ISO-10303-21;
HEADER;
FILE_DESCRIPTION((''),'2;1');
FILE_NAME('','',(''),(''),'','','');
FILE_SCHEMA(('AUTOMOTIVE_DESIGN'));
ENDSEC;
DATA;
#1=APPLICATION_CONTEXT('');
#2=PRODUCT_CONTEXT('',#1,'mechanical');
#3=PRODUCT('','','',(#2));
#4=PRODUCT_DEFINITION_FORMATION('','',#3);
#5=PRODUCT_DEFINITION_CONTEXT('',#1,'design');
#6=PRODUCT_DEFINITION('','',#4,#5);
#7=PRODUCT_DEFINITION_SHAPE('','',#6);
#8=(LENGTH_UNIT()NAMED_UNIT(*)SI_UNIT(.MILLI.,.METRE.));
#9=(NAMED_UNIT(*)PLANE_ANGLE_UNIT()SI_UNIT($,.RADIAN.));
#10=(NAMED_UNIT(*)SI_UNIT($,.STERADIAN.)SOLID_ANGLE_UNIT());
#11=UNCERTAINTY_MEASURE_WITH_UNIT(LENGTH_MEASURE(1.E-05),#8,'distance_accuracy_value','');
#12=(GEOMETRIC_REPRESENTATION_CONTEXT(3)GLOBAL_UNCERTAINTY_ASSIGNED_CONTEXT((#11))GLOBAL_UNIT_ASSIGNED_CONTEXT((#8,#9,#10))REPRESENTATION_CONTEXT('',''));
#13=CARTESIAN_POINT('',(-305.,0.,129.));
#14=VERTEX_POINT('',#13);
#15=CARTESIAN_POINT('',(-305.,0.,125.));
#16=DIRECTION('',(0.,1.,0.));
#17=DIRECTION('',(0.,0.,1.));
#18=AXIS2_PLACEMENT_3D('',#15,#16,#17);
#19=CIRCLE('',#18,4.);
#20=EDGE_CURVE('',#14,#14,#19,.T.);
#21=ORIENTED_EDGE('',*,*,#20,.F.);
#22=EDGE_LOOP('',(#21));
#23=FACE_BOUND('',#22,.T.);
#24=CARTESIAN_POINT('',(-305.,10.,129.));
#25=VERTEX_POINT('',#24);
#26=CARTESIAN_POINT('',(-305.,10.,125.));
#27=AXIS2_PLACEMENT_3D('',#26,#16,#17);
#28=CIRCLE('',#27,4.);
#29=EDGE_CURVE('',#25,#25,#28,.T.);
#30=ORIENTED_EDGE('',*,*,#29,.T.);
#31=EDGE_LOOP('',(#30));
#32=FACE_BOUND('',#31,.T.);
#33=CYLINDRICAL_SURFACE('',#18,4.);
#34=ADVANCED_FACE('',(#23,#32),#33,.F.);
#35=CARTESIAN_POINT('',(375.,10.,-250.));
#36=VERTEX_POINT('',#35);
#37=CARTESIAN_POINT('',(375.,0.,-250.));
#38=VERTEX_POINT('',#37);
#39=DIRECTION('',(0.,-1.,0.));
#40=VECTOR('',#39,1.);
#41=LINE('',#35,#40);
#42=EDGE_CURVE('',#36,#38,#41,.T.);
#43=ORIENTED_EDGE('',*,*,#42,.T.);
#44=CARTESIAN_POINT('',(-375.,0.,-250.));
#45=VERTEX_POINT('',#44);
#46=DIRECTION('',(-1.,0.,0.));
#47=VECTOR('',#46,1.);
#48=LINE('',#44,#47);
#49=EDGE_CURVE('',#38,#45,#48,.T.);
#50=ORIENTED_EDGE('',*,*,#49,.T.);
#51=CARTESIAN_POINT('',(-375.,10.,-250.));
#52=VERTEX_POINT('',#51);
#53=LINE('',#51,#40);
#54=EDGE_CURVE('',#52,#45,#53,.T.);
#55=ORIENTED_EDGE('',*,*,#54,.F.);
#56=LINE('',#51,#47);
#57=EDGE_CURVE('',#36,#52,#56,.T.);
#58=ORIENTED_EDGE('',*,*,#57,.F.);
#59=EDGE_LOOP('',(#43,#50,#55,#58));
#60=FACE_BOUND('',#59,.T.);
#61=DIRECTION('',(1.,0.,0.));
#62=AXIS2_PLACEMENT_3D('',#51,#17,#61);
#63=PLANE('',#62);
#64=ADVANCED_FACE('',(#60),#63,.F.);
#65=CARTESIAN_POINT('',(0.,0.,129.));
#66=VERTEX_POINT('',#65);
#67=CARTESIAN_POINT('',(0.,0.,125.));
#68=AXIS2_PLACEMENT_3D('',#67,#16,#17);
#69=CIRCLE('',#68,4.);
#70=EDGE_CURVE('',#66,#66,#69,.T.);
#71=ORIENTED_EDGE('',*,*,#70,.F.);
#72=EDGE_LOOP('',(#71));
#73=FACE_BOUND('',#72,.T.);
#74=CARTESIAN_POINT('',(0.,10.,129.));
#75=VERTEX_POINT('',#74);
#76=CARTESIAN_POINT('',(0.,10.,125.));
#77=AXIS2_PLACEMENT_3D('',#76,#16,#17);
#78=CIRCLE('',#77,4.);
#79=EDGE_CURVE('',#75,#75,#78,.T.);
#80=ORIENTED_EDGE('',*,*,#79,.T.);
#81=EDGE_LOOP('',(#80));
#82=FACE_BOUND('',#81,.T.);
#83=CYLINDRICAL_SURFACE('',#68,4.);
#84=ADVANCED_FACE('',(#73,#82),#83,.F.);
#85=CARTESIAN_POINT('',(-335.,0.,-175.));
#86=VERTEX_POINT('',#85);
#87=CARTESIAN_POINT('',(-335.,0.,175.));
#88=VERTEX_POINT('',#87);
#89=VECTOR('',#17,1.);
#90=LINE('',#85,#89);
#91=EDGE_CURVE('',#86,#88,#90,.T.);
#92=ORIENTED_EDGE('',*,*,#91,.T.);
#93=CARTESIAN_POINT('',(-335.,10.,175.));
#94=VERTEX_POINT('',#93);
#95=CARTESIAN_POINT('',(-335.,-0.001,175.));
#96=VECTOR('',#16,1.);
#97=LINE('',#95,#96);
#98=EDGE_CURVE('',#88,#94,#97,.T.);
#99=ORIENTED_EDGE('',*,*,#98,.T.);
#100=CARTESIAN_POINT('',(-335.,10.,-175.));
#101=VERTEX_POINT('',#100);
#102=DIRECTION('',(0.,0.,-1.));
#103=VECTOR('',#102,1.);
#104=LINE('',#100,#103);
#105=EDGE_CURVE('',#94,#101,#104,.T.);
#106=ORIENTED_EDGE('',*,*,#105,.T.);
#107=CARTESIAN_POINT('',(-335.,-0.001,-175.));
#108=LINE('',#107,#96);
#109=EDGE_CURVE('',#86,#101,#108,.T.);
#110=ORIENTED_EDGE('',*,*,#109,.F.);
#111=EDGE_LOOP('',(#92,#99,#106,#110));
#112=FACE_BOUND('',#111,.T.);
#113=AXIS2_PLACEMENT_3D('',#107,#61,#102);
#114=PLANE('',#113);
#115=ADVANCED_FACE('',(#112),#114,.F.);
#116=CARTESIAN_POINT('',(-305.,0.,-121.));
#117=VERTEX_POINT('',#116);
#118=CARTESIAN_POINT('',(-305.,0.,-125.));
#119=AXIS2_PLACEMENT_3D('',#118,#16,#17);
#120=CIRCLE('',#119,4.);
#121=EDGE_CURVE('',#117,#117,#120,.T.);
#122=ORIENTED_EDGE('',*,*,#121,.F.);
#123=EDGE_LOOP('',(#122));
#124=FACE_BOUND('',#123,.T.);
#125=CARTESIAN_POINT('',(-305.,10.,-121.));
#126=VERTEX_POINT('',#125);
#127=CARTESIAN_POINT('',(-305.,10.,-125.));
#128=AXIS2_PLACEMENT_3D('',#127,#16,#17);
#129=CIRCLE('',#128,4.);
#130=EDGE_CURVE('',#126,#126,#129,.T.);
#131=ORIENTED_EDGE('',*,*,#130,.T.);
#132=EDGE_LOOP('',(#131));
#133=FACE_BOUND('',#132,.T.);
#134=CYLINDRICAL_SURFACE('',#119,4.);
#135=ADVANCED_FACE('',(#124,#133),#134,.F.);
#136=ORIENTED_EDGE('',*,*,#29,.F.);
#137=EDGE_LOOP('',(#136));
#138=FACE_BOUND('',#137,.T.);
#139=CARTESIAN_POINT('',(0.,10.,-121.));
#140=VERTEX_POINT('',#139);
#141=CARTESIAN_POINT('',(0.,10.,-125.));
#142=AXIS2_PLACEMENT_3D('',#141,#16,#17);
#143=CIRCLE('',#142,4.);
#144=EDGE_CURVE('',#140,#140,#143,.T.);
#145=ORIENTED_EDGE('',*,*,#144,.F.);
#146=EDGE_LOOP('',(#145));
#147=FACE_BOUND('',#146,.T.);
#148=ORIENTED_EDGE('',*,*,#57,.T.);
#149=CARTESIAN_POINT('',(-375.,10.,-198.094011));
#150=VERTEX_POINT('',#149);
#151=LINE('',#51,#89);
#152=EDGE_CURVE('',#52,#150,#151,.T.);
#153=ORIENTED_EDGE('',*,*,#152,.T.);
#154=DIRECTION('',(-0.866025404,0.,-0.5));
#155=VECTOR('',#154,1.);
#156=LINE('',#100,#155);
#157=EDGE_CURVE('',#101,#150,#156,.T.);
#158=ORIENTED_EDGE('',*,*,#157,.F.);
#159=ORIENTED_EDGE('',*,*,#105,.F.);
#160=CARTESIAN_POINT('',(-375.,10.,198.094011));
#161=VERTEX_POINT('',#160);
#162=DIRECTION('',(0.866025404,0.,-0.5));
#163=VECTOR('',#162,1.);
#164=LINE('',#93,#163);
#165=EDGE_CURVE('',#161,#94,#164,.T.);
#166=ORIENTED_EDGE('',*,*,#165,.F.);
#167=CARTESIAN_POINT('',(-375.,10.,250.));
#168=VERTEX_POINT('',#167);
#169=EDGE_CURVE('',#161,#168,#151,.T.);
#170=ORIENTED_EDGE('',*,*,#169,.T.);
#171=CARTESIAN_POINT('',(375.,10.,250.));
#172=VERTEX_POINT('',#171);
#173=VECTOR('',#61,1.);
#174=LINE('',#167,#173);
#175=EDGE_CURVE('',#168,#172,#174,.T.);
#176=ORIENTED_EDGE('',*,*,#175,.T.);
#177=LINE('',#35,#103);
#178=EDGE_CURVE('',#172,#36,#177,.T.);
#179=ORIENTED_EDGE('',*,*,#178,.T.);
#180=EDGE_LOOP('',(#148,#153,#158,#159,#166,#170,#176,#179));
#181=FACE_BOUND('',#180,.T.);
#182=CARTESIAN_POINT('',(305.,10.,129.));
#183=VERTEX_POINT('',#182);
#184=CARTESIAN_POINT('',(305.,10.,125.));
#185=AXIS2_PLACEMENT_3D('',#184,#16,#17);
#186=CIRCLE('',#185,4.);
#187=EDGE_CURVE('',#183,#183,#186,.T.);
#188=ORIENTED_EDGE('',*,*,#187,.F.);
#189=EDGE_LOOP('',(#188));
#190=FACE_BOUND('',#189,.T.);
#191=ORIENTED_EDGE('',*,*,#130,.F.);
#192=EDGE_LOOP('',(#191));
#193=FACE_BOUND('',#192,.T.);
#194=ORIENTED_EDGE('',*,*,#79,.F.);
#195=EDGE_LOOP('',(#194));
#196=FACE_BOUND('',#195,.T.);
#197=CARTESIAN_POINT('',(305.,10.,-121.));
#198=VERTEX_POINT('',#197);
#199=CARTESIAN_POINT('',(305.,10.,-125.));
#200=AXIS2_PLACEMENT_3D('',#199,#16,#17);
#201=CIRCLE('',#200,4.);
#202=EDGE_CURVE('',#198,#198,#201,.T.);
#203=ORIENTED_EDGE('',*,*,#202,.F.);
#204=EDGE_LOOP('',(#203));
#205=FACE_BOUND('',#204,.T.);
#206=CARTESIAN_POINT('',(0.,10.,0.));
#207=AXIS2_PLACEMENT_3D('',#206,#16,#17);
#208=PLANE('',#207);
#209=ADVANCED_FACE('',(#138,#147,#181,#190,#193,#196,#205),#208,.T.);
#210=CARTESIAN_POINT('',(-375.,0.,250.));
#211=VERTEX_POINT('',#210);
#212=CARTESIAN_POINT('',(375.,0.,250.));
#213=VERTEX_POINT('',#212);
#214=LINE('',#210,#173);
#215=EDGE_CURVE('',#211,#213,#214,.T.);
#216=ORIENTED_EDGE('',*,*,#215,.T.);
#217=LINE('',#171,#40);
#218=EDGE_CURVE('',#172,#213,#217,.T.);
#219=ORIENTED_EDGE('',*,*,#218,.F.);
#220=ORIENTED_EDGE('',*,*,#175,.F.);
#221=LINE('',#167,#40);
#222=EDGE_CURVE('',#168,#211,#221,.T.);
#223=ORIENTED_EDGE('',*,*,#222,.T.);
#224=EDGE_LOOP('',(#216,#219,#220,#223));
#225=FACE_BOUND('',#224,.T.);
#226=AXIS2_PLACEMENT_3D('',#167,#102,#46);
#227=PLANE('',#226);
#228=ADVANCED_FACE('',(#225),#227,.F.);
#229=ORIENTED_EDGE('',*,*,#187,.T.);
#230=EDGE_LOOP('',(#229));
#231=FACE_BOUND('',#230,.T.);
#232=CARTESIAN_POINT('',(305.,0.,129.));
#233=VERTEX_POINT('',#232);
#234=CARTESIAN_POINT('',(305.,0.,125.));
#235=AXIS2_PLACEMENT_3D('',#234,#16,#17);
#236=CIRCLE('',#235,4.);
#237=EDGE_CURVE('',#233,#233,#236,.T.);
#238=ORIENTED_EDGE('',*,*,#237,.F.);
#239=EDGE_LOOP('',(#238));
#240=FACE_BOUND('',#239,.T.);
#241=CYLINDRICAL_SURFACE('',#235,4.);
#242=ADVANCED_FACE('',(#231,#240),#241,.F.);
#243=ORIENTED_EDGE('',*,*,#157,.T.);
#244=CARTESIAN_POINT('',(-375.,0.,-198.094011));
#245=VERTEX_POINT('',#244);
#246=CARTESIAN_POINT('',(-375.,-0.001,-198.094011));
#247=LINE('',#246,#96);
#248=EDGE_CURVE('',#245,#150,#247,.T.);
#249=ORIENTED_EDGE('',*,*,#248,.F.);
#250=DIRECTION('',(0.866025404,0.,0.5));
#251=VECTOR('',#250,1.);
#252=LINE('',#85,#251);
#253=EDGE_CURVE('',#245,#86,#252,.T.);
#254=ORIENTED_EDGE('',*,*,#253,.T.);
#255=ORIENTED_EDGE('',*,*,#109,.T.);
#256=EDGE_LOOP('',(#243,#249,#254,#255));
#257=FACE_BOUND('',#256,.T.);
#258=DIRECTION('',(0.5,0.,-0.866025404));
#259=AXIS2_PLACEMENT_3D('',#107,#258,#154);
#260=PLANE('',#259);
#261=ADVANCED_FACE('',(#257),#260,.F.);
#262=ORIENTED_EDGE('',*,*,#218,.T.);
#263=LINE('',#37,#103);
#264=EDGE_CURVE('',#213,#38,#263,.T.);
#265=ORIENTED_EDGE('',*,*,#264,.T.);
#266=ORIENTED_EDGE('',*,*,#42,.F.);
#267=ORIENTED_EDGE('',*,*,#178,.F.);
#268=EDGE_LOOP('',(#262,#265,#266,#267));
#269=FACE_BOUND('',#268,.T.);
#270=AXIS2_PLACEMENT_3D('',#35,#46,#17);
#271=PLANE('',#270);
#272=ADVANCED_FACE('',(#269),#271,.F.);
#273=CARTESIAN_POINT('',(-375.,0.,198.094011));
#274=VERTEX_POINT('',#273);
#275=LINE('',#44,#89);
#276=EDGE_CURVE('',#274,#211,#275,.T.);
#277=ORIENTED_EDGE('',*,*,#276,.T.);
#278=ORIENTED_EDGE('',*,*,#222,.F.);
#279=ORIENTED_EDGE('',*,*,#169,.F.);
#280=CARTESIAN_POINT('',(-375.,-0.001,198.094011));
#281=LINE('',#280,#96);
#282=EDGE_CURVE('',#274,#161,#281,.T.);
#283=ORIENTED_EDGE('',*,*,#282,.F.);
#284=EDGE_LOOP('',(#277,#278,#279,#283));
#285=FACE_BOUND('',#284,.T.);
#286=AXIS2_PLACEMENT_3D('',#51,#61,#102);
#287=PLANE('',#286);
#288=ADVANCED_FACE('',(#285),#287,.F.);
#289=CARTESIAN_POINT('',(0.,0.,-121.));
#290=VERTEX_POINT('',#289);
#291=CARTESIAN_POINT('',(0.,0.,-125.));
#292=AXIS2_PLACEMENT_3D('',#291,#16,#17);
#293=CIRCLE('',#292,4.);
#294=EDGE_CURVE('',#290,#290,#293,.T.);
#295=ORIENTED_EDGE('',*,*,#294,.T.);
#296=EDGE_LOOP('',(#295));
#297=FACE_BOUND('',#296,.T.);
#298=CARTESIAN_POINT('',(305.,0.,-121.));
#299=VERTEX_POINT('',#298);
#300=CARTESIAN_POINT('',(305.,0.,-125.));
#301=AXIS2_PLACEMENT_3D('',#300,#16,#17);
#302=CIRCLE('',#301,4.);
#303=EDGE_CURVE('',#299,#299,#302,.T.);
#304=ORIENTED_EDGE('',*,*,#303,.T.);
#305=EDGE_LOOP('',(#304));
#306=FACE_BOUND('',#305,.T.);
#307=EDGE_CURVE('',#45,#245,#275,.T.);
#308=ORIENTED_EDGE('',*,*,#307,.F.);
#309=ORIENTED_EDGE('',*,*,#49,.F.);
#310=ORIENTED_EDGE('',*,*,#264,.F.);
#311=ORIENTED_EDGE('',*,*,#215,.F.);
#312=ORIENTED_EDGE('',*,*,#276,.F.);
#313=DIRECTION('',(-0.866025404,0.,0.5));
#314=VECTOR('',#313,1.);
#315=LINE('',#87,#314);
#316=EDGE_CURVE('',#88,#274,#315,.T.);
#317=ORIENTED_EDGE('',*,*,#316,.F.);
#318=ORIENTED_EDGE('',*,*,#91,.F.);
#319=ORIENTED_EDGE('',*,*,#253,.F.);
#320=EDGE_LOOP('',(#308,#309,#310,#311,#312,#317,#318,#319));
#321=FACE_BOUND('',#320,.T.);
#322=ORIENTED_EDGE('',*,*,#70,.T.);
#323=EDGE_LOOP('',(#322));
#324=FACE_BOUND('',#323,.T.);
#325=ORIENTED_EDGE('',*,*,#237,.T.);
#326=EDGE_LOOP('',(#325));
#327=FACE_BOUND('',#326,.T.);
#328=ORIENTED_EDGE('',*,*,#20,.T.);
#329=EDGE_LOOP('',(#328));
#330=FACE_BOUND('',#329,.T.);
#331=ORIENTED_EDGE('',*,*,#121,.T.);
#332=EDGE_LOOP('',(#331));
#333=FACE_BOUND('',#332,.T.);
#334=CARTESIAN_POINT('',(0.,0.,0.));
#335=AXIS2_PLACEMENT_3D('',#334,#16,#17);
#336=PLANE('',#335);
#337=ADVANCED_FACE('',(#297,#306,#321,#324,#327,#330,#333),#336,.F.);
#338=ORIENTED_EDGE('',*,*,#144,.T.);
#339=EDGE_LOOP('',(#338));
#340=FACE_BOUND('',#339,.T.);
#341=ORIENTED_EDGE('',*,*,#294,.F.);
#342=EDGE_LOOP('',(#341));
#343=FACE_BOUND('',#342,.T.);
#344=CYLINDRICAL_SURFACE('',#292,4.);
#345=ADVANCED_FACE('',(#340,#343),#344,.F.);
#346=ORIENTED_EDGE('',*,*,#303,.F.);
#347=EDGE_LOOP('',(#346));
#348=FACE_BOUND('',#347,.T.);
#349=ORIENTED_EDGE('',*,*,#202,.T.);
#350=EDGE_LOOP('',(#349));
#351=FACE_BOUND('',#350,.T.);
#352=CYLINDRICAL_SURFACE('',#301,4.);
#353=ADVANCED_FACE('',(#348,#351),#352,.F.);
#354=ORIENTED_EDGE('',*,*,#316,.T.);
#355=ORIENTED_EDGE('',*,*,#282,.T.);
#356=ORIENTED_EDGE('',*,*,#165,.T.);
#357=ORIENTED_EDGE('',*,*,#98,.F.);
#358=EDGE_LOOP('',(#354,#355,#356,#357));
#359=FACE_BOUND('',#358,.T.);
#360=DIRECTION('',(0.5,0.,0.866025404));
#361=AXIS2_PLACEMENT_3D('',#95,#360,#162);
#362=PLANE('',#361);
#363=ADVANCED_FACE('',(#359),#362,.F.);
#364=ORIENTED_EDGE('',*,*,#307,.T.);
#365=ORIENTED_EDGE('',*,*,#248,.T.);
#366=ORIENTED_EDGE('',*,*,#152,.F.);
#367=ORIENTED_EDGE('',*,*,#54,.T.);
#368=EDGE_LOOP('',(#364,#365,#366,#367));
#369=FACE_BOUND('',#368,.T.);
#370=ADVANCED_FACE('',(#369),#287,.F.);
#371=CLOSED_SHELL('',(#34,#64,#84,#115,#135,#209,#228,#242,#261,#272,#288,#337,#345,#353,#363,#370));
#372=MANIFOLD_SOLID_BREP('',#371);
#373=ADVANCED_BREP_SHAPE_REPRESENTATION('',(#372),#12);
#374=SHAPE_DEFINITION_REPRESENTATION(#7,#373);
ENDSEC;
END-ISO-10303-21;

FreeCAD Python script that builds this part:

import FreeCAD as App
import Part
import Sketcher

V = App.Vector
Q = App.Units.Quantity


def add_polygon(sketch, points):
    """Adds a closed chain of lines whose ends are joined by coincident constraints."""
    first, n = sketch.GeometryCount, len(points)
    for a, b in zip(points, points[1:] + points[:1]):
        sketch.addGeometry(Part.LineSegment(App.Vector(*a, 0), App.Vector(*b, 0)), False)
    for i in range(n):
        sketch.addConstraint(Sketcher.Constraint("Coincident", first + i, 2, first + (i + 1) % n, 1))

doc = App.newDocument("Part")
body = doc.addObject("PartDesign::Body", "Body")

# Sketch on XZ plane
sketch1 = body.newObject("Sketcher::SketchObject", "Sketch")
sketch1.AttachmentSupport = (doc.getObject("XZ_Plane"), [""])
sketch1.MapMode = "FlatFace"
add_polygon(sketch1, [(-375, -250), (-375, 250), (375, 250), (375, -250)])  # lines 0-3
sketch1.addConstraint([
    Sketcher.Constraint("Vertical", 0),
    Sketcher.Constraint("Horizontal", 1),
    Sketcher.Constraint("Vertical", 2),
    Sketcher.Constraint("Horizontal", 3),
    Sketcher.Constraint("Symmetric", 0, 2, 2, 2, -1, 1),
    Sketcher.Constraint("DistanceX", 1, 1, 1, 2, 750.0),
    Sketcher.Constraint("DistanceY", 0, 1, 0, 2, 500.0),
])
pad1 = body.newObject("PartDesign::Pad", "Pad")
pad1.Profile = sketch1
pad1.Length = 10
pad1.Reversed = True

# Sketch on XZ plane
sketch2 = body.newObject("Sketcher::SketchObject", "Sketch001")
sketch2.AttachmentSupport = (doc.getObject("XZ_Plane"), [""])
sketch2.MapMode = "FlatFace"
sketch2.AttachmentOffset = App.Placement(V(0, 0, -10), App.Rotation())
sketch2.addGeometry(Part.Circle(V(305, -125, 0), V(0, 0, 1), 4), False)
sketch2.addConstraint([
    Sketcher.Constraint("Diameter", 0, 8.0),
    Sketcher.Constraint("DistanceX", -1, 1, 0, 3, 305.0),
    Sketcher.Constraint("DistanceY", 0, 3, -1, 1, 125.0),
])
pocket1 = body.newObject("PartDesign::Pocket", "Pocket")
pocket1.Profile = sketch2
pocket1.Length = 10
pocket1.Reversed = True

# Sketch on XZ plane
sketch3 = body.newObject("Sketcher::SketchObject", "Sketch002")
sketch3.AttachmentSupport = (doc.getObject("XZ_Plane"), [""])
sketch3.MapMode = "FlatFace"
sketch3.AttachmentOffset = App.Placement(V(0, 0, -10), App.Rotation())
sketch3.addGeometry(Part.Circle(V(305, 125, 0), V(0, 0, 1), 4), False)
sketch3.addConstraint([
    Sketcher.Constraint("Diameter", 0, 8.0),
    Sketcher.Constraint("DistanceX", -1, 1, 0, 3, 305.0),
    Sketcher.Constraint("DistanceY", -1, 1, 0, 3, 125.0),
])
pocket2 = body.newObject("PartDesign::Pocket", "Pocket001")
pocket2.Profile = sketch3
pocket2.Length = 10
pocket2.Reversed = True

# Sketch on XZ plane
sketch4 = body.newObject("Sketcher::SketchObject", "Sketch003")
sketch4.AttachmentSupport = (doc.getObject("XZ_Plane"), [""])
sketch4.MapMode = "FlatFace"
sketch4.AttachmentOffset = App.Placement(V(0, 0, -10), App.Rotation())
sketch4.addGeometry(Part.Circle(V(0, -125, 0), V(0, 0, 1), 4), False)
sketch4.addConstraint([
    Sketcher.Constraint("PointOnObject", 0, 3, -2),
    Sketcher.Constraint("Diameter", 0, 8.0),
    Sketcher.Constraint("DistanceY", 0, 3, -1, 1, 125.0),
])
pocket3 = body.newObject("PartDesign::Pocket", "Pocket002")
pocket3.Profile = sketch4
pocket3.Length = 10
pocket3.Reversed = True

# Sketch on XZ plane
sketch5 = body.newObject("Sketcher::SketchObject", "Sketch004")
sketch5.AttachmentSupport = (doc.getObject("XZ_Plane"), [""])
sketch5.MapMode = "FlatFace"
sketch5.AttachmentOffset = App.Placement(V(0, 0, -10), App.Rotation())
sketch5.addGeometry(Part.Circle(V(0, 125, 0), V(0, 0, 1), 4), False)
sketch5.addConstraint([
    Sketcher.Constraint("PointOnObject", 0, 3, -2),
    Sketcher.Constraint("Diameter", 0, 8.0),
    Sketcher.Constraint("DistanceY", -1, 1, 0, 3, 125.0),
])
pocket4 = body.newObject("PartDesign::Pocket", "Pocket003")
pocket4.Profile = sketch5
pocket4.Length = 10
pocket4.Reversed = True

# Sketch on XZ plane
sketch6 = body.newObject("Sketcher::SketchObject", "Sketch005")
sketch6.AttachmentSupport = (doc.getObject("XZ_Plane"), [""])
sketch6.MapMode = "FlatFace"
sketch6.AttachmentOffset = App.Placement(V(0, 0, -10), App.Rotation())
sketch6.addGeometry(Part.Circle(V(-305, -125, 0), V(0, 0, 1), 4), False)
sketch6.addConstraint([
    Sketcher.Constraint("Diameter", 0, 8.0),
    Sketcher.Constraint("DistanceX", 0, 3, -1, 1, 305.0),
    Sketcher.Constraint("DistanceY", 0, 3, -1, 1, 125.0),
])
pocket5 = body.newObject("PartDesign::Pocket", "Pocket004")
pocket5.Profile = sketch6
pocket5.Length = 10
pocket5.Reversed = True

# Sketch on XZ plane
sketch7 = body.newObject("Sketcher::SketchObject", "Sketch006")
sketch7.AttachmentSupport = (doc.getObject("XZ_Plane"), [""])
sketch7.MapMode = "FlatFace"
sketch7.AttachmentOffset = App.Placement(V(0, 0, -10), App.Rotation())
sketch7.addGeometry(Part.Circle(V(-305, 125, 0), V(0, 0, 1), 4), False)
sketch7.addConstraint([
    Sketcher.Constraint("Diameter", 0, 8.0),
    Sketcher.Constraint("DistanceX", 0, 3, -1, 1, 305.0),
    Sketcher.Constraint("DistanceY", -1, 1, 0, 3, 125.0),
])
pocket6 = body.newObject("PartDesign::Pocket", "Pocket005")
pocket6.Profile = sketch7
pocket6.Length = 10
pocket6.Reversed = True

# Sketch on XZ plane
sketch8 = body.newObject("Sketcher::SketchObject", "Sketch007")
sketch8.AttachmentSupport = (doc.getObject("XZ_Plane"), [""])
sketch8.MapMode = "FlatFace"
sketch8.AttachmentOffset = App.Placement(V(0, 0, -10), App.Rotation())
add_polygon(sketch8, [(-335, 175), (-335, -175), (-375, -198), (-375, 198)])  # lines 0-3
sketch8.addConstraint([
    Sketcher.Constraint("Vertical", 0),
    Sketcher.Constraint("Vertical", 2),
    Sketcher.Constraint("Equal", 1, 3),
    Sketcher.Constraint("DistanceY", 0, 2, 0, 1, 350.0),
    Sketcher.Constraint("Angle", 1, Q("-150 deg")),
    Sketcher.Constraint("DistanceX", 0, 2, -1, 1, 335.0),
    Sketcher.Constraint("DistanceY", 0, 2, -1, 1, 175.0),
    Sketcher.Constraint("DistanceX", 1, 2, -1, 1, 375.0),
])
pocket7 = body.newObject("PartDesign::Pocket", "Pocket006")
pocket7.Profile = sketch8
pocket7.Type = "UpToFirst"
pocket7.Reversed = True

doc.recompute()
